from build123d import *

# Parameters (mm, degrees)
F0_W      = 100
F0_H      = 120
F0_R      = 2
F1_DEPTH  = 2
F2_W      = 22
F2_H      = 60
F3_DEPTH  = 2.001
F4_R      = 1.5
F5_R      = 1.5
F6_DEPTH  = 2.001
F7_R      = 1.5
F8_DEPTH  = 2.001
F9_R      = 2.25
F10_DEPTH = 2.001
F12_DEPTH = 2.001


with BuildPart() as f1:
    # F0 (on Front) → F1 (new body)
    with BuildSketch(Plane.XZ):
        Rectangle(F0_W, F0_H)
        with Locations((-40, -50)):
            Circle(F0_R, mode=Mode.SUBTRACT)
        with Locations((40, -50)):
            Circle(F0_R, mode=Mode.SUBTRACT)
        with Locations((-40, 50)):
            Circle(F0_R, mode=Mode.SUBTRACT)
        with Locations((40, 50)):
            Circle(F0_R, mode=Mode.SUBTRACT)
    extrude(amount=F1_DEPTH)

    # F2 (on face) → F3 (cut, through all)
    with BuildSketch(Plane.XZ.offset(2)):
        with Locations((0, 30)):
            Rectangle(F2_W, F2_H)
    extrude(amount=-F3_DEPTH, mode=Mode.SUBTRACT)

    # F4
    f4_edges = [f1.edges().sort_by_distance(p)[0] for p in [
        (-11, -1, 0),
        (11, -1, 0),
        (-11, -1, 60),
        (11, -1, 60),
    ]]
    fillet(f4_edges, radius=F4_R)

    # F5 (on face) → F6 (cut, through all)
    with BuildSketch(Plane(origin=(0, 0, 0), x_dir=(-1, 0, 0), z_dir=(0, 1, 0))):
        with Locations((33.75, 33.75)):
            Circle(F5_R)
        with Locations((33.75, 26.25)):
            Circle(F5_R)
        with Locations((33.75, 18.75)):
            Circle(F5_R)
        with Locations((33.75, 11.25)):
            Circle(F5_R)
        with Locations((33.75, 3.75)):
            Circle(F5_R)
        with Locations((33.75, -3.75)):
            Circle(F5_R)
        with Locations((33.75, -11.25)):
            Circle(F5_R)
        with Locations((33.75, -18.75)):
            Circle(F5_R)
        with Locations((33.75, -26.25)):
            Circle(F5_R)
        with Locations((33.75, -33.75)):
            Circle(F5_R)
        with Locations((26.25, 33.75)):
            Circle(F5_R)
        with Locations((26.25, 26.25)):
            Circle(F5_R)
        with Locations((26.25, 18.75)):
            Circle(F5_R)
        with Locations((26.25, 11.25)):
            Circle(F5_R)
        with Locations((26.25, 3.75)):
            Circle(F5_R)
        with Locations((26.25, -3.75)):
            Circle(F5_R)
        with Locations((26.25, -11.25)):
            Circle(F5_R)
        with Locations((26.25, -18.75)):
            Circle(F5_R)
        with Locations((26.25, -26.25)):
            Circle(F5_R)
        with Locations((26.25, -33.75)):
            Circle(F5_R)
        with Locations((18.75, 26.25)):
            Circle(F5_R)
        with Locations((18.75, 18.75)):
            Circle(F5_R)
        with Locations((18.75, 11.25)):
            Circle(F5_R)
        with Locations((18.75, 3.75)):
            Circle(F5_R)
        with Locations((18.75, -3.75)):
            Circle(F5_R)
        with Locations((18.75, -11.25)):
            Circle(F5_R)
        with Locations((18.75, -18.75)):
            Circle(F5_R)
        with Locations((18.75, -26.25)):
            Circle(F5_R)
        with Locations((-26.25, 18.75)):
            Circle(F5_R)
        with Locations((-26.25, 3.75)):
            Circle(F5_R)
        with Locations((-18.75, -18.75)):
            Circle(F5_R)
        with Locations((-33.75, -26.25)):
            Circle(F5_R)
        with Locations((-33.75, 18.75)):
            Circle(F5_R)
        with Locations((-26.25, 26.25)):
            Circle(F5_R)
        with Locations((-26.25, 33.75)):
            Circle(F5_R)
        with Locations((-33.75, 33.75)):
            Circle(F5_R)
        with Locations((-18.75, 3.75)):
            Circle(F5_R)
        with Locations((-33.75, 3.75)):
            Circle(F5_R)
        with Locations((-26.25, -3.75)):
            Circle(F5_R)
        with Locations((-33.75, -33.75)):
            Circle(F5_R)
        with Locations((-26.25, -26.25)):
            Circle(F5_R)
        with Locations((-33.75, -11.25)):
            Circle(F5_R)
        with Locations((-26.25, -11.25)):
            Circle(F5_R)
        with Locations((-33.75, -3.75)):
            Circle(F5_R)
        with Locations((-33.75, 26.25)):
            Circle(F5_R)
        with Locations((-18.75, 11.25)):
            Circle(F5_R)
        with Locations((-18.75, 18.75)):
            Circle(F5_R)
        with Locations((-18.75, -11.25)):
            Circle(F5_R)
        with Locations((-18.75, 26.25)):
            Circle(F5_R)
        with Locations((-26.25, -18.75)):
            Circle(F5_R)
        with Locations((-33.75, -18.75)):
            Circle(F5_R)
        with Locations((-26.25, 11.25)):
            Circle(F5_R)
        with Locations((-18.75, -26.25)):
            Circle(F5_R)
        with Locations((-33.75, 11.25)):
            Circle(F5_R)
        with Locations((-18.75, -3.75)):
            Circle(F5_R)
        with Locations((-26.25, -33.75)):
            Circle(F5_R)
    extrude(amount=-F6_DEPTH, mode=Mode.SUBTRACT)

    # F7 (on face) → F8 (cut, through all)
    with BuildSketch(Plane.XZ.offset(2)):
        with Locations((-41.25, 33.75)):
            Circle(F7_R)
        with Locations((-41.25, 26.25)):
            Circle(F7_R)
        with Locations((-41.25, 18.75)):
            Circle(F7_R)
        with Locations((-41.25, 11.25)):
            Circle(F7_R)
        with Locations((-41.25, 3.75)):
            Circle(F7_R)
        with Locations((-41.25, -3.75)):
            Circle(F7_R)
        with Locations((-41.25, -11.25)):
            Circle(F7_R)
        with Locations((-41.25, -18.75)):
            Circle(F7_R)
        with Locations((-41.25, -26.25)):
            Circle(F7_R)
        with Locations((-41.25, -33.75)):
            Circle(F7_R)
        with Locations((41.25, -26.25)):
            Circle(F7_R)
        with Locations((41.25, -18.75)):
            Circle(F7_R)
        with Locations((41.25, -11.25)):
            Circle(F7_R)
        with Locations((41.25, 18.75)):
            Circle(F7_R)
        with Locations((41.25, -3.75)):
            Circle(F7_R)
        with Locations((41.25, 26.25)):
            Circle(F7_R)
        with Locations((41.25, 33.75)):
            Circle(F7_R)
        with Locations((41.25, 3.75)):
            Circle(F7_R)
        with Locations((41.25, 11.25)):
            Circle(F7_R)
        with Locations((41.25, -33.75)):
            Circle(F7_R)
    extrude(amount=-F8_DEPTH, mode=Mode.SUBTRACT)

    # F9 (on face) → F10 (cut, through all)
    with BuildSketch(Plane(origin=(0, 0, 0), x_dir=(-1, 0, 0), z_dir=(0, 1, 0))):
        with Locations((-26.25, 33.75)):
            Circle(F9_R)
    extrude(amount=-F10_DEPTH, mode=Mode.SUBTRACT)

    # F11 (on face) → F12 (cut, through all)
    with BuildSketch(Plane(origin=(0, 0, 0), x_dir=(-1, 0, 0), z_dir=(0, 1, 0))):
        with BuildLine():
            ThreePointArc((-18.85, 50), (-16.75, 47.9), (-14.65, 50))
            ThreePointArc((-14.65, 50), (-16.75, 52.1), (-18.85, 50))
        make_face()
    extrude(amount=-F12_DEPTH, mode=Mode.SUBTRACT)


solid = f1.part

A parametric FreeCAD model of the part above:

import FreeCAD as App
import Part
import Sketcher

V = App.Vector


def edges_at(feature, points):
    """Names of the edges that pass closest to the given points."""
    edges = feature.Shape.Edges
    near = lambda p: min(range(len(edges)), key=lambda i: edges[i].distToShape(Part.Vertex(*p))[0])
    return sorted({f"Edge{near(p) + 1}" for p in points})


def add_polygon(sketch, points):
    """Adds a closed chain of lines whose ends are joined by coincident constraints."""
    first, n = sketch.GeometryCount, len(points)
    for a, b in zip(points, points[1:] + points[:1]):
        sketch.addGeometry(Part.LineSegment(App.Vector(*a, 0), App.Vector(*b, 0)), False)
    for i in range(n):
        sketch.addConstraint(Sketcher.Constraint("Coincident", first + i, 2, first + (i + 1) % n, 1))

doc = App.newDocument("Part")
body = doc.addObject("PartDesign::Body", "Body")

# Sketch on XZ plane
sketch1 = body.newObject("Sketcher::SketchObject", "Sketch")
sketch1.AttachmentSupport = (doc.getObject("XZ_Plane"), [""])
sketch1.MapMode = "FlatFace"
add_polygon(sketch1, [(-50, 60), (-50, -60), (50, -60), (50, 60)])  # lines 0-3
sketch1.addGeometry(Part.Circle(V(-40, -50, 0), V(0, 0, 1), 2), False)  # 4
sketch1.addGeometry(Part.Circle(V(40, -50, 0), V(0, 0, 1), 2), False)  # 5
sketch1.addGeometry(Part.Circle(V(-40, 50, 0), V(0, 0, 1), 2), False)  # 6
sketch1.addGeometry(Part.Circle(V(40, 50, 0), V(0, 0, 1), 2), False)  # 7
sketch1.addConstraint(Sketcher.Constraint("Vertical", 0))
sketch1.addConstraint(Sketcher.Constraint("Horizontal", 1))
sketch1.addConstraint(Sketcher.Constraint("Vertical", 2))
sketch1.addConstraint(Sketcher.Constraint("Horizontal", 3))
sketch1.addConstraint(Sketcher.Constraint("Equal", 4, 5))
sketch1.addConstraint(Sketcher.Constraint("Equal", 5, 6))
sketch1.addConstraint(Sketcher.Constraint("Equal", 6, 7))
sketch1.addConstraint(Sketcher.Constraint("Symmetric", 5, 3, 6, 3, -1, 1))
sketch1.addConstraint(Sketcher.Constraint("Symmetric", 4, 3, 7, 3, -1, 1))
sketch1.addConstraint(Sketcher.Constraint("Symmetric", 0, 2, 2, 2, -1, 1))
sketch1.addConstraint(Sketcher.Constraint("Symmetric", 4, 3, 5, 3, -2))
sketch1.addConstraint(Sketcher.Constraint("Diameter", 4, 4.0))
sketch1.addConstraint(Sketcher.Constraint("DistanceX", 1, 1, 1, 2, 100.0))
sketch1.addConstraint(Sketcher.Constraint("DistanceY", 0, 2, 0, 1, 120.0))
sketch1.addConstraint(Sketcher.Constraint("DistanceX", 4, 3, -1, 1, 40.0))
sketch1.addConstraint(Sketcher.Constraint("DistanceY", 4, 3, -1, 1, 50.0))
pad1 = body.newObject("PartDesign::Pad", "Pad")
pad1.Profile = sketch1
pad1.Length = 2

# Sketch on XZ plane
sketch2 = body.newObject("Sketcher::SketchObject", "Sketch001")
sketch2.AttachmentSupport = (doc.getObject("XZ_Plane"), [""])
sketch2.MapMode = "FlatFace"
sketch2.AttachmentOffset = App.Placement(V(0, 0, 2), App.Rotation())
add_polygon(sketch2, [(-11, 60), (-11, 0), (11, 0), (11, 60)])  # lines 0-3
sketch2.addConstraint(Sketcher.Constraint("Vertical", 0))
sketch2.addConstraint(Sketcher.Constraint("Horizontal", 1))
sketch2.addConstraint(Sketcher.Constraint("Vertical", 2))
sketch2.addConstraint(Sketcher.Constraint("Horizontal", 3))
sketch2.addConstraint(Sketcher.Constraint("Symmetric", 0, 2, 1, 2, -1, 1))
sketch2.addConstraint(Sketcher.Constraint("DistanceX", 1, 1, 1, 2, 22.0))
sketch2.addConstraint(Sketcher.Constraint("DistanceY", 0, 2, 0, 1, 60.0))
pocket1 = body.newObject("PartDesign::Pocket", "Pocket")
pocket1.Profile = sketch2
pocket1.Type = "ThroughAll"
doc.recompute()

fillet = body.newObject("PartDesign::Fillet", "Fillet")
fillet.Base = (pocket1, edges_at(pocket1, [
    (-11, -1, 0),
    (11, -1, 0),
    (-11, -1, 60),
    (11, -1, 60),
]))
fillet.Radius = 1.5

# Sketch on XZ plane
sketch3 = body.newObject("Sketcher::SketchObject", "Sketch002")
sketch3.AttachmentSupport = (doc.getObject("XZ_Plane"), [""])
sketch3.MapMode = "FlatFace"
sketch3.addGeometry(Part.Circle(V(-33.8, 33.8, 0), V(0, 0, 1), 1.5), False)
sketch3.addGeometry(Part.Circle(V(-33.8, 26.2, 0), V(0, 0, 1), 1.5), False)
sketch3.addGeometry(Part.Circle(V(-33.8, 18.8, 0), V(0, 0, 1), 1.5), False)
sketch3.addGeometry(Part.Circle(V(-33.8, 11.2, 0), V(0, 0, 1), 1.5), False)
sketch3.addGeometry(Part.Circle(V(-33.8, 3.8, 0), V(0, 0, 1), 1.5), False)
sketch3.addGeometry(Part.Circle(V(-33.8, -3.8, 0), V(0, 0, 1), 1.5), False)
sketch3.addGeometry(Part.Circle(V(-33.8, -11.2, 0), V(0, 0, 1), 1.5), False)
sketch3.addGeometry(Part.Circle(V(-33.8, -18.8, 0), V(0, 0, 1), 1.5), False)
sketch3.addGeometry(Part.Circle(V(-33.8, -26.2, 0), V(0, 0, 1), 1.5), False)
sketch3.addGeometry(Part.Circle(V(-33.8, -33.8, 0), V(0, 0, 1), 1.5), False)
sketch3.addGeometry(Part.Circle(V(-26.2, 33.8, 0), V(0, 0, 1), 1.5), False)
sketch3.addGeometry(Part.Circle(V(-26.2, 26.2, 0), V(0, 0, 1), 1.5), False)
sketch3.addGeometry(Part.Circle(V(-26.2, 18.8, 0), V(0, 0, 1), 1.5), False)
sketch3.addGeometry(Part.Circle(V(-26.2, 11.2, 0), V(0, 0, 1), 1.5), False)
sketch3.addGeometry(Part.Circle(V(-26.2, 3.8, 0), V(0, 0, 1), 1.5), False)
sketch3.addGeometry(Part.Circle(V(-26.2, -3.8, 0), V(0, 0, 1), 1.5), False)
sketch3.addGeometry(Part.Circle(V(-26.2, -11.2, 0), V(0, 0, 1), 1.5), False)
sketch3.addGeometry(Part.Circle(V(-26.2, -18.8, 0), V(0, 0, 1), 1.5), False)
sketch3.addGeometry(Part.Circle(V(-26.2, -26.2, 0), V(0, 0, 1), 1.5), False)
sketch3.addGeometry(Part.Circle(V(-26.2, -33.8, 0), V(0, 0, 1), 1.5), False)
sketch3.addGeometry(Part.Circle(V(-18.8, 26.2, 0), V(0, 0, 1), 1.5), False)
sketch3.addGeometry(Part.Circle(V(-18.8, 18.8, 0), V(0, 0, 1), 1.5), False)
sketch3.addGeometry(Part.Circle(V(-18.8, 11.2, 0), V(0, 0, 1), 1.5), False)
sketch3.addGeometry(Part.Circle(V(-18.8, 3.8, 0), V(0, 0, 1), 1.5), False)
sketch3.addGeometry(Part.Circle(V(-18.8, -3.8, 0), V(0, 0, 1), 1.5), False)
sketch3.addGeometry(Part.Circle(V(-18.8, -11.2, 0), V(0, 0, 1), 1.5), False)
sketch3.addGeometry(Part.Circle(V(-18.8, -18.8, 0), V(0, 0, 1), 1.5), False)
sketch3.addGeometry(Part.Circle(V(-18.8, -26.2, 0), V(0, 0, 1), 1.5), False)
sketch3.addGeometry(Part.Circle(V(26.2, 18.8, 0), V(0, 0, 1), 1.5), False)
sketch3.addGeometry(Part.Circle(V(26.2, 3.8, 0), V(0, 0, 1), 1.5), False)
sketch3.addGeometry(Part.Circle(V(18.8, -18.8, 0), V(0, 0, 1), 1.5), False)
sketch3.addGeometry(Part.Circle(V(33.8, -26.2, 0), V(0, 0, 1), 1.5), False)
sketch3.addGeometry(Part.Circle(V(33.8, 18.8, 0), V(0, 0, 1), 1.5), False)
sketch3.addGeometry(Part.Circle(V(26.2, 26.2, 0), V(0, 0, 1), 1.5), False)
sketch3.addGeometry(Part.Circle(V(26.2, 33.8, 0), V(0, 0, 1), 1.5), False)
sketch3.addGeometry(Part.Circle(V(33.8, 33.8, 0), V(0, 0, 1), 1.5), False)
sketch3.addGeometry(Part.Circle(V(18.8, 3.8, 0), V(0, 0, 1), 1.5), False)
sketch3.addGeometry(Part.Circle(V(33.8, 3.8, 0), V(0, 0, 1), 1.5), False)
sketch3.addGeometry(Part.Circle(V(26.2, -3.8, 0), V(0, 0, 1), 1.5), False)
sketch3.addGeometry(Part.Circle(V(33.8, -33.8, 0), V(0, 0, 1), 1.5), False)
sketch3.addGeometry(Part.Circle(V(26.2, -26.2, 0), V(0, 0, 1), 1.5), False)
sketch3.addGeometry(Part.Circle(V(33.8, -11.2, 0), V(0, 0, 1), 1.5), False)
sketch3.addGeometry(Part.Circle(V(26.2, -11.2, 0), V(0, 0, 1), 1.5), False)
sketch3.addGeometry(Part.Circle(V(33.8, -3.8, 0), V(0, 0, 1), 1.5), False)
sketch3.addGeometry(Part.Circle(V(33.8, 26.2, 0), V(0, 0, 1), 1.5), False)
sketch3.addGeometry(Part.Circle(V(18.8, 11.2, 0), V(0, 0, 1), 1.5), False)
sketch3.addGeometry(Part.Circle(V(18.8, 18.8, 0), V(0, 0, 1), 1.5), False)
sketch3.addGeometry(Part.Circle(V(18.8, -11.2, 0), V(0, 0, 1), 1.5), False)
sketch3.addGeometry(Part.Circle(V(18.8, 26.2, 0), V(0, 0, 1), 1.5), False)
sketch3.addGeometry(Part.Circle(V(26.2, -18.8, 0), V(0, 0, 1), 1.5), False)
sketch3.addGeometry(Part.Circle(V(33.8, -18.8, 0), V(0, 0, 1), 1.5), False)
sketch3.addGeometry(Part.Circle(V(26.2, 11.2, 0), V(0, 0, 1), 1.5), False)
sketch3.addGeometry(Part.Circle(V(18.8, -26.2, 0), V(0, 0, 1), 1.5), False)
sketch3.addGeometry(Part.Circle(V(33.8, 11.2, 0), V(0, 0, 1), 1.5), False)
sketch3.addGeometry(Part.Circle(V(18.8, -3.8, 0), V(0, 0, 1), 1.5), False)
sketch3.addGeometry(Part.Circle(V(26.2, -33.8, 0), V(0, 0, 1), 1.5), False)
sketch3.addConstraint(Sketcher.Constraint("Equal", 0, 1))
sketch3.addConstraint(Sketcher.Constraint("Equal", 1, 2))
sketch3.addConstraint(Sketcher.Constraint("Equal", 2, 3))
sketch3.addConstraint(Sketcher.Constraint("Equal", 3, 4))
sketch3.addConstraint(Sketcher.Constraint("Equal", 4, 5))
sketch3.addConstraint(Sketcher.Constraint("Equal", 5, 6))
sketch3.addConstraint(Sketcher.Constraint("Equal", 6, 7))
sketch3.addConstraint(Sketcher.Constraint("Equal", 7, 8))
sketch3.addConstraint(Sketcher.Constraint("Equal", 8, 9))
sketch3.addConstraint(Sketcher.Constraint("Equal", 9, 10))
sketch3.addConstraint(Sketcher.Constraint("Equal", 10, 11))
sketch3.addConstraint(Sketcher.Constraint("Equal", 11, 12))
sketch3.addConstraint(Sketcher.Constraint("Equal", 12, 13))
sketch3.addConstraint(Sketcher.Constraint("Equal", 13, 14))
sketch3.addConstraint(Sketcher.Constraint("Equal", 14, 15))
sketch3.addConstraint(Sketcher.Constraint("Equal", 15, 16))
sketch3.addConstraint(Sketcher.Constraint("Equal", 16, 17))
sketch3.addConstraint(Sketcher.Constraint("Equal", 17, 18))
sketch3.addConstraint(Sketcher.Constraint("Equal", 18, 19))
sketch3.addConstraint(Sketcher.Constraint("Equal", 19, 20))
sketch3.addConstraint(Sketcher.Constraint("Equal", 20, 21))
sketch3.addConstraint(Sketcher.Constraint("Equal", 21, 22))
sketch3.addConstraint(Sketcher.Constraint("Equal", 22, 23))
sketch3.addConstraint(Sketcher.Constraint("Equal", 23, 24))
sketch3.addConstraint(Sketcher.Constraint("Equal", 24, 25))
sketch3.addConstraint(Sketcher.Constraint("Equal", 25, 26))
sketch3.addConstraint(Sketcher.Constraint("Equal", 26, 27))
sketch3.addConstraint(Sketcher.Constraint("Equal", 27, 28))
sketch3.addConstraint(Sketcher.Constraint("Equal", 28, 29))
sketch3.addConstraint(Sketcher.Constraint("Equal", 29, 30))
sketch3.addConstraint(Sketcher.Constraint("Equal", 30, 31))
sketch3.addConstraint(Sketcher.Constraint("Equal", 31, 32))
sketch3.addConstraint(Sketcher.Constraint("Equal", 32, 33))
sketch3.addConstraint(Sketcher.Constraint("Equal", 33, 34))
sketch3.addConstraint(Sketcher.Constraint("Equal", 34, 35))
sketch3.addConstraint(Sketcher.Constraint("Equal", 35, 36))
sketch3.addConstraint(Sketcher.Constraint("Equal", 36, 37))
sketch3.addConstraint(Sketcher.Constraint("Equal", 37, 38))
sketch3.addConstraint(Sketcher.Constraint("Equal", 38, 39))
sketch3.addConstraint(Sketcher.Constraint("Equal", 39, 40))
sketch3.addConstraint(Sketcher.Constraint("Equal", 40, 41))
sketch3.addConstraint(Sketcher.Constraint("Equal", 41, 42))
sketch3.addConstraint(Sketcher.Constraint("Equal", 42, 43))
sketch3.addConstraint(Sketcher.Constraint("Equal", 43, 44))
sketch3.addConstraint(Sketcher.Constraint("Equal", 44, 45))
sketch3.addConstraint(Sketcher.Constraint("Equal", 45, 46))
sketch3.addConstraint(Sketcher.Constraint("Equal", 46, 47))
sketch3.addConstraint(Sketcher.Constraint("Equal", 47, 48))
sketch3.addConstraint(Sketcher.Constraint("Equal", 48, 49))
sketch3.addConstraint(Sketcher.Constraint("Equal", 49, 50))
sketch3.addConstraint(Sketcher.Constraint("Equal", 50, 51))
sketch3.addConstraint(Sketcher.Constraint("Equal", 51, 52))
sketch3.addConstraint(Sketcher.Constraint("Equal", 52, 53))
sketch3.addConstraint(Sketcher.Constraint("Equal", 53, 54))
sketch3.addConstraint(Sketcher.Constraint("Equal", 54, 55))
sketch3.addConstraint(Sketcher.Constraint("Symmetric", 17, 3, 28, 3, -1, 1))
sketch3.addConstraint(Sketcher.Constraint("Symmetric", 15, 3, 29, 3, -1, 1))
sketch3.addConstraint(Sketcher.Constraint("Symmetric", 21, 3, 30, 3, -1, 1))
sketch3.addConstraint(Sketcher.Constraint("Symmetric", 1, 3, 31, 3, -1, 1))
sketch3.addConstraint(Sketcher.Constraint("Symmetric", 7, 3, 32, 3, -1, 1))
sketch3.addConstraint(Sketcher.Constraint("Symmetric", 18, 3, 33, 3, -1, 1))
sketch3.addConstraint(Sketcher.Constraint("Symmetric", 19, 3, 34, 3, -1, 1))
sketch3.addConstraint(Sketcher.Constraint("Symmetric", 9, 3, 35, 3, -1, 1))
sketch3.addConstraint(Sketcher.Constraint("Symmetric", 24, 3, 36, 3, -1, 1))
sketch3.addConstraint(Sketcher.Constraint("Symmetric", 5, 3, 37, 3, -1, 1))
sketch3.addConstraint(Sketcher.Constraint("Symmetric", 14, 3, 38, 3, -1, 1))
sketch3.addConstraint(Sketcher.Constraint("Symmetric", 0, 3, 39, 3, -1, 1))
sketch3.addConstraint(Sketcher.Constraint("Symmetric", 11, 3, 40, 3, -1, 1))
sketch3.addConstraint(Sketcher.Constraint("Symmetric", 3, 3, 41, 3, -1, 1))
sketch3.addConstraint(Sketcher.Constraint("Symmetric", 13, 3, 42, 3, -1, 1))
sketch3.addConstraint(Sketcher.Constraint("Symmetric", 4, 3, 43, 3, -1, 1))
sketch3.addConstraint(Sketcher.Constraint("Symmetric", 8, 3, 44, 3, -1, 1))
sketch3.addConstraint(Sketcher.Constraint("Symmetric", 25, 3, 45, 3, -1, 1))
sketch3.addConstraint(Sketcher.Constraint("Symmetric", 26, 3, 46, 3, -1, 1))
sketch3.addConstraint(Sketcher.Constraint("Symmetric", 22, 3, 47, 3, -1, 1))
sketch3.addConstraint(Sketcher.Constraint("Symmetric", 27, 3, 48, 3, -1, 1))
sketch3.addConstraint(Sketcher.Constraint("Symmetric", 12, 3, 49, 3, -1, 1))
sketch3.addConstraint(Sketcher.Constraint("Symmetric", 2, 3, 50, 3, -1, 1))
sketch3.addConstraint(Sketcher.Constraint("Symmetric", 16, 3, 51, 3, -1, 1))
sketch3.addConstraint(Sketcher.Constraint("Symmetric", 20, 3, 52, 3, -1, 1))
sketch3.addConstraint(Sketcher.Constraint("Symmetric", 6, 3, 53, 3, -1, 1))
sketch3.addConstraint(Sketcher.Constraint("Symmetric", 23, 3, 54, 3, -1, 1))
sketch3.addConstraint(Sketcher.Constraint("Symmetric", 10, 3, 55, 3, -1, 1))
sketch3.addConstraint(Sketcher.Constraint("Symmetric", 12, 3, 28, 3, -2))
sketch3.addConstraint(Sketcher.Constraint("Symmetric", 14, 3, 29, 3, -2))
sketch3.addConstraint(Sketcher.Constraint("Symmetric", 26, 3, 30, 3, -2))
sketch3.addConstraint(Sketcher.Constraint("Symmetric", 8, 3, 31, 3, -2))
sketch3.addConstraint(Sketcher.Constraint("Symmetric", 2, 3, 32, 3, -2))
sketch3.addConstraint(Sketcher.Constraint("Symmetric", 11, 3, 33, 3, -2))
sketch3.addConstraint(Sketcher.Constraint("Symmetric", 10, 3, 34, 3, -2))
sketch3.addConstraint(Sketcher.Constraint("Symmetric", 0, 3, 35, 3, -2))
sketch3.addConstraint(Sketcher.Constraint("Symmetric", 23, 3, 36, 3, -2))
sketch3.addConstraint(Sketcher.Constraint("Symmetric", 4, 3, 37, 3, -2))
sketch3.addConstraint(Sketcher.Constraint("Symmetric", 6, 3, 41, 3, -2))
sketch3.addConstraint(Sketcher.Constraint("Symmetric", 16, 3, 42, 3, -2))
sketch3.addConstraint(Sketcher.Constraint("Symmetric", 22, 3, 45, 3, -2))
sketch3.addConstraint(Sketcher.Constraint("Symmetric", 20, 3, 48, 3, -2))
sketch3.addConstraint(Sketcher.Constraint("Horizontal", 0, 3, 10, 3))
sketch3.addConstraint(Sketcher.Constraint("Horizontal", 1, 3, 11, 3))
sketch3.addConstraint(Sketcher.Constraint("Horizontal", 2, 3, 12, 3))
sketch3.addConstraint(Sketcher.Constraint("Horizontal", 3, 3, 13, 3))
sketch3.addConstraint(Sketcher.Constraint("Horizontal", 4, 3, 14, 3))
sketch3.addConstraint(Sketcher.Constraint("Horizontal", 11, 3, 20, 3))
sketch3.addConstraint(Sketcher.Constraint("Horizontal", 12, 3, 21, 3))
sketch3.addConstraint(Sketcher.Constraint("Horizontal", 13, 3, 22, 3))
sketch3.addConstraint(Sketcher.Constraint("Horizontal", 14, 3, 23, 3))
sketch3.addConstraint(Sketcher.Constraint("Vertical", 0, 3, 1, 3))
sketch3.addConstraint(Sketcher.Constraint("Vertical", 1, 3, 2, 3))
sketch3.addConstraint(Sketcher.Constraint("Vertical", 2, 3, 3, 3))
sketch3.addConstraint(Sketcher.Constraint("Vertical", 3, 3, 4, 3))
sketch3.addConstraint(Sketcher.Constraint("Vertical", 10, 3, 11, 3))
sketch3.addConstraint(Sketcher.Constraint("Vertical", 11, 3, 12, 3))
sketch3.addConstraint(Sketcher.Constraint("Vertical", 12, 3, 13, 3))
sketch3.addConstraint(Sketcher.Constraint("Vertical", 13, 3, 14, 3))
sketch3.addConstraint(Sketcher.Constraint("Vertical", 20, 3, 21, 3))
sketch3.addConstraint(Sketcher.Constraint("Vertical", 21, 3, 22, 3))
sketch3.addConstraint(Sketcher.Constraint("Vertical", 22, 3, 23, 3))
sketch3.addConstraint(Sketcher.Constraint("Diameter", 0, 3.0))
sketch3.addConstraint(Sketcher.Constraint("DistanceY", 2, 3, 0, 3, 15.0))
sketch3.addConstraint(Sketcher.Constraint("DistanceY", 3, 3, 1, 3, 15.0))
sketch3.addConstraint(Sketcher.Constraint("DistanceY", 4, 3, 2, 3, 15.0))
sketch3.addConstraint(Sketcher.Constraint("DistanceY", 5, 3, 3, 3, 15.0))
sketch3.addConstraint(Sketcher.Constraint("DistanceX", 1, 3, 20, 3, 15.0))
sketch3.addConstraint(Sketcher.Constraint("DistanceX", 21, 3, 28, 3, 45.0))
sketch3.addConstraint(Sketcher.Constraint("DistanceY", 1, 3, 0, 3, 7.5))
sketch3.addConstraint(Sketcher.Constraint("DistanceX", 0, 3, 10, 3, 7.5))
pocket2 = body.newObject("PartDesign::Pocket", "Pocket001")
pocket2.Profile = sketch3
pocket2.Type = "ThroughAll"
pocket2.Reversed = True

# Sketch on XZ plane
sketch4 = body.newObject("Sketcher::SketchObject", "Sketch003")
sketch4.AttachmentSupport = (doc.getObject("XZ_Plane"), [""])
sketch4.MapMode = "FlatFace"
sketch4.AttachmentOffset = App.Placement(V(0, 0, 2), App.Rotation())
sketch4.addGeometry(Part.Circle(V(-41.2, 33.8, 0), V(0, 0, 1), 1.5), False)
sketch4.addGeometry(Part.Circle(V(-41.2, 26.2, 0), V(0, 0, 1), 1.5), False)
sketch4.addGeometry(Part.Circle(V(-41.2, 18.8, 0), V(0, 0, 1), 1.5), False)
sketch4.addGeometry(Part.Circle(V(-41.2, 11.2, 0), V(0, 0, 1), 1.5), False)
sketch4.addGeometry(Part.Circle(V(-41.2, 3.8, 0), V(0, 0, 1), 1.5), False)
sketch4.addGeometry(Part.Circle(V(-41.2, -3.8, 0), V(0, 0, 1), 1.5), False)
sketch4.addGeometry(Part.Circle(V(-41.2, -11.2, 0), V(0, 0, 1), 1.5), False)
sketch4.addGeometry(Part.Circle(V(-41.2, -18.8, 0), V(0, 0, 1), 1.5), False)
sketch4.addGeometry(Part.Circle(V(-41.2, -26.2, 0), V(0, 0, 1), 1.5), False)
sketch4.addGeometry(Part.Circle(V(-41.2, -33.8, 0), V(0, 0, 1), 1.5), False)
sketch4.addGeometry(Part.Circle(V(41.2, -26.2, 0), V(0, 0, 1), 1.5), False)
sketch4.addGeometry(Part.Circle(V(41.2, -18.8, 0), V(0, 0, 1), 1.5), False)
sketch4.addGeometry(Part.Circle(V(41.2, -11.2, 0), V(0, 0, 1), 1.5), False)
sketch4.addGeometry(Part.Circle(V(41.2, 18.8, 0), V(0, 0, 1), 1.5), False)
sketch4.addGeometry(Part.Circle(V(41.2, -3.8, 0), V(0, 0, 1), 1.5), False)
sketch4.addGeometry(Part.Circle(V(41.2, 26.2, 0), V(0, 0, 1), 1.5), False)
sketch4.addGeometry(Part.Circle(V(41.2, 33.8, 0), V(0, 0, 1), 1.5), False)
sketch4.addGeometry(Part.Circle(V(41.2, 3.8, 0), V(0, 0, 1), 1.5), False)
sketch4.addGeometry(Part.Circle(V(41.2, 11.2, 0), V(0, 0, 1), 1.5), False)
sketch4.addGeometry(Part.Circle(V(41.2, -33.8, 0), V(0, 0, 1), 1.5), False)
sketch4.addConstraint(Sketcher.Constraint("Equal", 0, 1))
sketch4.addConstraint(Sketcher.Constraint("Equal", 1, 2))
sketch4.addConstraint(Sketcher.Constraint("Equal", 2, 3))
sketch4.addConstraint(Sketcher.Constraint("Equal", 3, 4))
sketch4.addConstraint(Sketcher.Constraint("Equal", 4, 5))
sketch4.addConstraint(Sketcher.Constraint("Equal", 5, 6))
sketch4.addConstraint(Sketcher.Constraint("Equal", 6, 7))
sketch4.addConstraint(Sketcher.Constraint("Equal", 7, 8))
sketch4.addConstraint(Sketcher.Constraint("Equal", 8, 9))
sketch4.addConstraint(Sketcher.Constraint("Equal", 9, 10))
sketch4.addConstraint(Sketcher.Constraint("Equal", 10, 11))
sketch4.addConstraint(Sketcher.Constraint("Equal", 11, 12))
sketch4.addConstraint(Sketcher.Constraint("Equal", 12, 13))
sketch4.addConstraint(Sketcher.Constraint("Equal", 13, 14))
sketch4.addConstraint(Sketcher.Constraint("Equal", 14, 15))
sketch4.addConstraint(Sketcher.Constraint("Equal", 15, 16))
sketch4.addConstraint(Sketcher.Constraint("Equal", 16, 17))
sketch4.addConstraint(Sketcher.Constraint("Equal", 17, 18))
sketch4.addConstraint(Sketcher.Constraint("Equal", 18, 19))
sketch4.addConstraint(Sketcher.Constraint("Symmetric", 1, 3, 10, 3, -1, 1))
sketch4.addConstraint(Sketcher.Constraint("Symmetric", 2, 3, 11, 3, -1, 1))
sketch4.addConstraint(Sketcher.Constraint("Symmetric", 3, 3, 12, 3, -1, 1))
sketch4.addConstraint(Sketcher.Constraint("Symmetric", 7, 3, 13, 3, -1, 1))
sketch4.addConstraint(Sketcher.Constraint("Symmetric", 4, 3, 14, 3, -1, 1))
sketch4.addConstraint(Sketcher.Constraint("Symmetric", 8, 3, 15, 3, -1, 1))
sketch4.addConstraint(Sketcher.Constraint("Symmetric", 9, 3, 16, 3, -1, 1))
sketch4.addConstraint(Sketcher.Constraint("Symmetric", 5, 3, 17, 3, -1, 1))
sketch4.addConstraint(Sketcher.Constraint("Symmetric", 6, 3, 18, 3, -1, 1))
sketch4.addConstraint(Sketcher.Constraint("Symmetric", 0, 3, 19, 3, -1, 1))
sketch4.addConstraint(Sketcher.Constraint("Symmetric", 8, 3, 10, 3, -2))
sketch4.addConstraint(Sketcher.Constraint("Symmetric", 7, 3, 11, 3, -2))
sketch4.addConstraint(Sketcher.Constraint("Symmetric", 6, 3, 12, 3, -2))
sketch4.addConstraint(Sketcher.Constraint("Symmetric", 5, 3, 14, 3, -2))
sketch4.addConstraint(Sketcher.Constraint("Symmetric", 0, 3, 16, 3, -2))
sketch4.addConstraint(Sketcher.Constraint("Vertical", 0, 3, 1, 3))
sketch4.addConstraint(Sketcher.Constraint("Vertical", 1, 3, 2, 3))
sketch4.addConstraint(Sketcher.Constraint("Vertical", 2, 3, 3, 3))
sketch4.addConstraint(Sketcher.Constraint("Vertical", 3, 3, 4, 3))
sketch4.addConstraint(Sketcher.Constraint("Diameter", 0, 3.0))
sketch4.addConstraint(Sketcher.Constraint("DistanceY", 2, 3, 0, 3, 15.0))
sketch4.addConstraint(Sketcher.Constraint("DistanceY", 3, 3, 1, 3, 15.0))
sketch4.addConstraint(Sketcher.Constraint("DistanceY", 4, 3, 2, 3, 15.0))
sketch4.addConstraint(Sketcher.Constraint("DistanceY", 5, 3, 3, 3, 15.0))
sketch4.addConstraint(Sketcher.Constraint("DistanceY", 1, 3, 0, 3, 7.5))
sketch4.addConstraint(Sketcher.Constraint("DistanceX", 8, 3, 10, 3, 82.5))
pocket3 = body.newObject("PartDesign::Pocket", "Pocket002")
pocket3.Profile = sketch4
pocket3.Type = "ThroughAll"

# Sketch on XZ plane
sketch5 = body.newObject("Sketcher::SketchObject", "Sketch004")
sketch5.AttachmentSupport = (doc.getObject("XZ_Plane"), [""])
sketch5.MapMode = "FlatFace"
sketch5.addGeometry(Part.Circle(V(26.2, 33.8, 0), V(0, 0, 1), 2.2), False)
sketch5.addConstraint(Sketcher.Constraint("Diameter", 0, 4.5))
sketch5.addConstraint(Sketcher.Constraint("DistanceX", -1, 1, 0, 3, 26.25))
sketch5.addConstraint(Sketcher.Constraint("DistanceY", -1, 1, 0, 3, 33.75))
pocket4 = body.newObject("PartDesign::Pocket", "Pocket003")
pocket4.Profile = sketch5
pocket4.Type = "ThroughAll"
pocket4.Reversed = True

# Sketch on XZ plane
sketch6 = body.newObject("Sketcher::SketchObject", "Sketch005")
sketch6.AttachmentSupport = (doc.getObject("XZ_Plane"), [""])
sketch6.MapMode = "FlatFace"
sketch6.addGeometry(Part.Circle(V(16.8, 50, 0), V(0, 0, 1), 2.1), False)
sketch6.addConstraint(Sketcher.Constraint("Diameter", 0, 4.2))
sketch6.addConstraint(Sketcher.Constraint("DistanceY", -1, 1, 0, 3, 50.0))
sketch6.addConstraint(Sketcher.Constraint("DistanceX", -1, 1, 0, 3, 16.75))
pocket5 = body.newObject("PartDesign::Pocket", "Pocket004")
pocket5.Profile = sketch6
pocket5.Type = "ThroughAll"
pocket5.Reversed = True

doc.recompute()
